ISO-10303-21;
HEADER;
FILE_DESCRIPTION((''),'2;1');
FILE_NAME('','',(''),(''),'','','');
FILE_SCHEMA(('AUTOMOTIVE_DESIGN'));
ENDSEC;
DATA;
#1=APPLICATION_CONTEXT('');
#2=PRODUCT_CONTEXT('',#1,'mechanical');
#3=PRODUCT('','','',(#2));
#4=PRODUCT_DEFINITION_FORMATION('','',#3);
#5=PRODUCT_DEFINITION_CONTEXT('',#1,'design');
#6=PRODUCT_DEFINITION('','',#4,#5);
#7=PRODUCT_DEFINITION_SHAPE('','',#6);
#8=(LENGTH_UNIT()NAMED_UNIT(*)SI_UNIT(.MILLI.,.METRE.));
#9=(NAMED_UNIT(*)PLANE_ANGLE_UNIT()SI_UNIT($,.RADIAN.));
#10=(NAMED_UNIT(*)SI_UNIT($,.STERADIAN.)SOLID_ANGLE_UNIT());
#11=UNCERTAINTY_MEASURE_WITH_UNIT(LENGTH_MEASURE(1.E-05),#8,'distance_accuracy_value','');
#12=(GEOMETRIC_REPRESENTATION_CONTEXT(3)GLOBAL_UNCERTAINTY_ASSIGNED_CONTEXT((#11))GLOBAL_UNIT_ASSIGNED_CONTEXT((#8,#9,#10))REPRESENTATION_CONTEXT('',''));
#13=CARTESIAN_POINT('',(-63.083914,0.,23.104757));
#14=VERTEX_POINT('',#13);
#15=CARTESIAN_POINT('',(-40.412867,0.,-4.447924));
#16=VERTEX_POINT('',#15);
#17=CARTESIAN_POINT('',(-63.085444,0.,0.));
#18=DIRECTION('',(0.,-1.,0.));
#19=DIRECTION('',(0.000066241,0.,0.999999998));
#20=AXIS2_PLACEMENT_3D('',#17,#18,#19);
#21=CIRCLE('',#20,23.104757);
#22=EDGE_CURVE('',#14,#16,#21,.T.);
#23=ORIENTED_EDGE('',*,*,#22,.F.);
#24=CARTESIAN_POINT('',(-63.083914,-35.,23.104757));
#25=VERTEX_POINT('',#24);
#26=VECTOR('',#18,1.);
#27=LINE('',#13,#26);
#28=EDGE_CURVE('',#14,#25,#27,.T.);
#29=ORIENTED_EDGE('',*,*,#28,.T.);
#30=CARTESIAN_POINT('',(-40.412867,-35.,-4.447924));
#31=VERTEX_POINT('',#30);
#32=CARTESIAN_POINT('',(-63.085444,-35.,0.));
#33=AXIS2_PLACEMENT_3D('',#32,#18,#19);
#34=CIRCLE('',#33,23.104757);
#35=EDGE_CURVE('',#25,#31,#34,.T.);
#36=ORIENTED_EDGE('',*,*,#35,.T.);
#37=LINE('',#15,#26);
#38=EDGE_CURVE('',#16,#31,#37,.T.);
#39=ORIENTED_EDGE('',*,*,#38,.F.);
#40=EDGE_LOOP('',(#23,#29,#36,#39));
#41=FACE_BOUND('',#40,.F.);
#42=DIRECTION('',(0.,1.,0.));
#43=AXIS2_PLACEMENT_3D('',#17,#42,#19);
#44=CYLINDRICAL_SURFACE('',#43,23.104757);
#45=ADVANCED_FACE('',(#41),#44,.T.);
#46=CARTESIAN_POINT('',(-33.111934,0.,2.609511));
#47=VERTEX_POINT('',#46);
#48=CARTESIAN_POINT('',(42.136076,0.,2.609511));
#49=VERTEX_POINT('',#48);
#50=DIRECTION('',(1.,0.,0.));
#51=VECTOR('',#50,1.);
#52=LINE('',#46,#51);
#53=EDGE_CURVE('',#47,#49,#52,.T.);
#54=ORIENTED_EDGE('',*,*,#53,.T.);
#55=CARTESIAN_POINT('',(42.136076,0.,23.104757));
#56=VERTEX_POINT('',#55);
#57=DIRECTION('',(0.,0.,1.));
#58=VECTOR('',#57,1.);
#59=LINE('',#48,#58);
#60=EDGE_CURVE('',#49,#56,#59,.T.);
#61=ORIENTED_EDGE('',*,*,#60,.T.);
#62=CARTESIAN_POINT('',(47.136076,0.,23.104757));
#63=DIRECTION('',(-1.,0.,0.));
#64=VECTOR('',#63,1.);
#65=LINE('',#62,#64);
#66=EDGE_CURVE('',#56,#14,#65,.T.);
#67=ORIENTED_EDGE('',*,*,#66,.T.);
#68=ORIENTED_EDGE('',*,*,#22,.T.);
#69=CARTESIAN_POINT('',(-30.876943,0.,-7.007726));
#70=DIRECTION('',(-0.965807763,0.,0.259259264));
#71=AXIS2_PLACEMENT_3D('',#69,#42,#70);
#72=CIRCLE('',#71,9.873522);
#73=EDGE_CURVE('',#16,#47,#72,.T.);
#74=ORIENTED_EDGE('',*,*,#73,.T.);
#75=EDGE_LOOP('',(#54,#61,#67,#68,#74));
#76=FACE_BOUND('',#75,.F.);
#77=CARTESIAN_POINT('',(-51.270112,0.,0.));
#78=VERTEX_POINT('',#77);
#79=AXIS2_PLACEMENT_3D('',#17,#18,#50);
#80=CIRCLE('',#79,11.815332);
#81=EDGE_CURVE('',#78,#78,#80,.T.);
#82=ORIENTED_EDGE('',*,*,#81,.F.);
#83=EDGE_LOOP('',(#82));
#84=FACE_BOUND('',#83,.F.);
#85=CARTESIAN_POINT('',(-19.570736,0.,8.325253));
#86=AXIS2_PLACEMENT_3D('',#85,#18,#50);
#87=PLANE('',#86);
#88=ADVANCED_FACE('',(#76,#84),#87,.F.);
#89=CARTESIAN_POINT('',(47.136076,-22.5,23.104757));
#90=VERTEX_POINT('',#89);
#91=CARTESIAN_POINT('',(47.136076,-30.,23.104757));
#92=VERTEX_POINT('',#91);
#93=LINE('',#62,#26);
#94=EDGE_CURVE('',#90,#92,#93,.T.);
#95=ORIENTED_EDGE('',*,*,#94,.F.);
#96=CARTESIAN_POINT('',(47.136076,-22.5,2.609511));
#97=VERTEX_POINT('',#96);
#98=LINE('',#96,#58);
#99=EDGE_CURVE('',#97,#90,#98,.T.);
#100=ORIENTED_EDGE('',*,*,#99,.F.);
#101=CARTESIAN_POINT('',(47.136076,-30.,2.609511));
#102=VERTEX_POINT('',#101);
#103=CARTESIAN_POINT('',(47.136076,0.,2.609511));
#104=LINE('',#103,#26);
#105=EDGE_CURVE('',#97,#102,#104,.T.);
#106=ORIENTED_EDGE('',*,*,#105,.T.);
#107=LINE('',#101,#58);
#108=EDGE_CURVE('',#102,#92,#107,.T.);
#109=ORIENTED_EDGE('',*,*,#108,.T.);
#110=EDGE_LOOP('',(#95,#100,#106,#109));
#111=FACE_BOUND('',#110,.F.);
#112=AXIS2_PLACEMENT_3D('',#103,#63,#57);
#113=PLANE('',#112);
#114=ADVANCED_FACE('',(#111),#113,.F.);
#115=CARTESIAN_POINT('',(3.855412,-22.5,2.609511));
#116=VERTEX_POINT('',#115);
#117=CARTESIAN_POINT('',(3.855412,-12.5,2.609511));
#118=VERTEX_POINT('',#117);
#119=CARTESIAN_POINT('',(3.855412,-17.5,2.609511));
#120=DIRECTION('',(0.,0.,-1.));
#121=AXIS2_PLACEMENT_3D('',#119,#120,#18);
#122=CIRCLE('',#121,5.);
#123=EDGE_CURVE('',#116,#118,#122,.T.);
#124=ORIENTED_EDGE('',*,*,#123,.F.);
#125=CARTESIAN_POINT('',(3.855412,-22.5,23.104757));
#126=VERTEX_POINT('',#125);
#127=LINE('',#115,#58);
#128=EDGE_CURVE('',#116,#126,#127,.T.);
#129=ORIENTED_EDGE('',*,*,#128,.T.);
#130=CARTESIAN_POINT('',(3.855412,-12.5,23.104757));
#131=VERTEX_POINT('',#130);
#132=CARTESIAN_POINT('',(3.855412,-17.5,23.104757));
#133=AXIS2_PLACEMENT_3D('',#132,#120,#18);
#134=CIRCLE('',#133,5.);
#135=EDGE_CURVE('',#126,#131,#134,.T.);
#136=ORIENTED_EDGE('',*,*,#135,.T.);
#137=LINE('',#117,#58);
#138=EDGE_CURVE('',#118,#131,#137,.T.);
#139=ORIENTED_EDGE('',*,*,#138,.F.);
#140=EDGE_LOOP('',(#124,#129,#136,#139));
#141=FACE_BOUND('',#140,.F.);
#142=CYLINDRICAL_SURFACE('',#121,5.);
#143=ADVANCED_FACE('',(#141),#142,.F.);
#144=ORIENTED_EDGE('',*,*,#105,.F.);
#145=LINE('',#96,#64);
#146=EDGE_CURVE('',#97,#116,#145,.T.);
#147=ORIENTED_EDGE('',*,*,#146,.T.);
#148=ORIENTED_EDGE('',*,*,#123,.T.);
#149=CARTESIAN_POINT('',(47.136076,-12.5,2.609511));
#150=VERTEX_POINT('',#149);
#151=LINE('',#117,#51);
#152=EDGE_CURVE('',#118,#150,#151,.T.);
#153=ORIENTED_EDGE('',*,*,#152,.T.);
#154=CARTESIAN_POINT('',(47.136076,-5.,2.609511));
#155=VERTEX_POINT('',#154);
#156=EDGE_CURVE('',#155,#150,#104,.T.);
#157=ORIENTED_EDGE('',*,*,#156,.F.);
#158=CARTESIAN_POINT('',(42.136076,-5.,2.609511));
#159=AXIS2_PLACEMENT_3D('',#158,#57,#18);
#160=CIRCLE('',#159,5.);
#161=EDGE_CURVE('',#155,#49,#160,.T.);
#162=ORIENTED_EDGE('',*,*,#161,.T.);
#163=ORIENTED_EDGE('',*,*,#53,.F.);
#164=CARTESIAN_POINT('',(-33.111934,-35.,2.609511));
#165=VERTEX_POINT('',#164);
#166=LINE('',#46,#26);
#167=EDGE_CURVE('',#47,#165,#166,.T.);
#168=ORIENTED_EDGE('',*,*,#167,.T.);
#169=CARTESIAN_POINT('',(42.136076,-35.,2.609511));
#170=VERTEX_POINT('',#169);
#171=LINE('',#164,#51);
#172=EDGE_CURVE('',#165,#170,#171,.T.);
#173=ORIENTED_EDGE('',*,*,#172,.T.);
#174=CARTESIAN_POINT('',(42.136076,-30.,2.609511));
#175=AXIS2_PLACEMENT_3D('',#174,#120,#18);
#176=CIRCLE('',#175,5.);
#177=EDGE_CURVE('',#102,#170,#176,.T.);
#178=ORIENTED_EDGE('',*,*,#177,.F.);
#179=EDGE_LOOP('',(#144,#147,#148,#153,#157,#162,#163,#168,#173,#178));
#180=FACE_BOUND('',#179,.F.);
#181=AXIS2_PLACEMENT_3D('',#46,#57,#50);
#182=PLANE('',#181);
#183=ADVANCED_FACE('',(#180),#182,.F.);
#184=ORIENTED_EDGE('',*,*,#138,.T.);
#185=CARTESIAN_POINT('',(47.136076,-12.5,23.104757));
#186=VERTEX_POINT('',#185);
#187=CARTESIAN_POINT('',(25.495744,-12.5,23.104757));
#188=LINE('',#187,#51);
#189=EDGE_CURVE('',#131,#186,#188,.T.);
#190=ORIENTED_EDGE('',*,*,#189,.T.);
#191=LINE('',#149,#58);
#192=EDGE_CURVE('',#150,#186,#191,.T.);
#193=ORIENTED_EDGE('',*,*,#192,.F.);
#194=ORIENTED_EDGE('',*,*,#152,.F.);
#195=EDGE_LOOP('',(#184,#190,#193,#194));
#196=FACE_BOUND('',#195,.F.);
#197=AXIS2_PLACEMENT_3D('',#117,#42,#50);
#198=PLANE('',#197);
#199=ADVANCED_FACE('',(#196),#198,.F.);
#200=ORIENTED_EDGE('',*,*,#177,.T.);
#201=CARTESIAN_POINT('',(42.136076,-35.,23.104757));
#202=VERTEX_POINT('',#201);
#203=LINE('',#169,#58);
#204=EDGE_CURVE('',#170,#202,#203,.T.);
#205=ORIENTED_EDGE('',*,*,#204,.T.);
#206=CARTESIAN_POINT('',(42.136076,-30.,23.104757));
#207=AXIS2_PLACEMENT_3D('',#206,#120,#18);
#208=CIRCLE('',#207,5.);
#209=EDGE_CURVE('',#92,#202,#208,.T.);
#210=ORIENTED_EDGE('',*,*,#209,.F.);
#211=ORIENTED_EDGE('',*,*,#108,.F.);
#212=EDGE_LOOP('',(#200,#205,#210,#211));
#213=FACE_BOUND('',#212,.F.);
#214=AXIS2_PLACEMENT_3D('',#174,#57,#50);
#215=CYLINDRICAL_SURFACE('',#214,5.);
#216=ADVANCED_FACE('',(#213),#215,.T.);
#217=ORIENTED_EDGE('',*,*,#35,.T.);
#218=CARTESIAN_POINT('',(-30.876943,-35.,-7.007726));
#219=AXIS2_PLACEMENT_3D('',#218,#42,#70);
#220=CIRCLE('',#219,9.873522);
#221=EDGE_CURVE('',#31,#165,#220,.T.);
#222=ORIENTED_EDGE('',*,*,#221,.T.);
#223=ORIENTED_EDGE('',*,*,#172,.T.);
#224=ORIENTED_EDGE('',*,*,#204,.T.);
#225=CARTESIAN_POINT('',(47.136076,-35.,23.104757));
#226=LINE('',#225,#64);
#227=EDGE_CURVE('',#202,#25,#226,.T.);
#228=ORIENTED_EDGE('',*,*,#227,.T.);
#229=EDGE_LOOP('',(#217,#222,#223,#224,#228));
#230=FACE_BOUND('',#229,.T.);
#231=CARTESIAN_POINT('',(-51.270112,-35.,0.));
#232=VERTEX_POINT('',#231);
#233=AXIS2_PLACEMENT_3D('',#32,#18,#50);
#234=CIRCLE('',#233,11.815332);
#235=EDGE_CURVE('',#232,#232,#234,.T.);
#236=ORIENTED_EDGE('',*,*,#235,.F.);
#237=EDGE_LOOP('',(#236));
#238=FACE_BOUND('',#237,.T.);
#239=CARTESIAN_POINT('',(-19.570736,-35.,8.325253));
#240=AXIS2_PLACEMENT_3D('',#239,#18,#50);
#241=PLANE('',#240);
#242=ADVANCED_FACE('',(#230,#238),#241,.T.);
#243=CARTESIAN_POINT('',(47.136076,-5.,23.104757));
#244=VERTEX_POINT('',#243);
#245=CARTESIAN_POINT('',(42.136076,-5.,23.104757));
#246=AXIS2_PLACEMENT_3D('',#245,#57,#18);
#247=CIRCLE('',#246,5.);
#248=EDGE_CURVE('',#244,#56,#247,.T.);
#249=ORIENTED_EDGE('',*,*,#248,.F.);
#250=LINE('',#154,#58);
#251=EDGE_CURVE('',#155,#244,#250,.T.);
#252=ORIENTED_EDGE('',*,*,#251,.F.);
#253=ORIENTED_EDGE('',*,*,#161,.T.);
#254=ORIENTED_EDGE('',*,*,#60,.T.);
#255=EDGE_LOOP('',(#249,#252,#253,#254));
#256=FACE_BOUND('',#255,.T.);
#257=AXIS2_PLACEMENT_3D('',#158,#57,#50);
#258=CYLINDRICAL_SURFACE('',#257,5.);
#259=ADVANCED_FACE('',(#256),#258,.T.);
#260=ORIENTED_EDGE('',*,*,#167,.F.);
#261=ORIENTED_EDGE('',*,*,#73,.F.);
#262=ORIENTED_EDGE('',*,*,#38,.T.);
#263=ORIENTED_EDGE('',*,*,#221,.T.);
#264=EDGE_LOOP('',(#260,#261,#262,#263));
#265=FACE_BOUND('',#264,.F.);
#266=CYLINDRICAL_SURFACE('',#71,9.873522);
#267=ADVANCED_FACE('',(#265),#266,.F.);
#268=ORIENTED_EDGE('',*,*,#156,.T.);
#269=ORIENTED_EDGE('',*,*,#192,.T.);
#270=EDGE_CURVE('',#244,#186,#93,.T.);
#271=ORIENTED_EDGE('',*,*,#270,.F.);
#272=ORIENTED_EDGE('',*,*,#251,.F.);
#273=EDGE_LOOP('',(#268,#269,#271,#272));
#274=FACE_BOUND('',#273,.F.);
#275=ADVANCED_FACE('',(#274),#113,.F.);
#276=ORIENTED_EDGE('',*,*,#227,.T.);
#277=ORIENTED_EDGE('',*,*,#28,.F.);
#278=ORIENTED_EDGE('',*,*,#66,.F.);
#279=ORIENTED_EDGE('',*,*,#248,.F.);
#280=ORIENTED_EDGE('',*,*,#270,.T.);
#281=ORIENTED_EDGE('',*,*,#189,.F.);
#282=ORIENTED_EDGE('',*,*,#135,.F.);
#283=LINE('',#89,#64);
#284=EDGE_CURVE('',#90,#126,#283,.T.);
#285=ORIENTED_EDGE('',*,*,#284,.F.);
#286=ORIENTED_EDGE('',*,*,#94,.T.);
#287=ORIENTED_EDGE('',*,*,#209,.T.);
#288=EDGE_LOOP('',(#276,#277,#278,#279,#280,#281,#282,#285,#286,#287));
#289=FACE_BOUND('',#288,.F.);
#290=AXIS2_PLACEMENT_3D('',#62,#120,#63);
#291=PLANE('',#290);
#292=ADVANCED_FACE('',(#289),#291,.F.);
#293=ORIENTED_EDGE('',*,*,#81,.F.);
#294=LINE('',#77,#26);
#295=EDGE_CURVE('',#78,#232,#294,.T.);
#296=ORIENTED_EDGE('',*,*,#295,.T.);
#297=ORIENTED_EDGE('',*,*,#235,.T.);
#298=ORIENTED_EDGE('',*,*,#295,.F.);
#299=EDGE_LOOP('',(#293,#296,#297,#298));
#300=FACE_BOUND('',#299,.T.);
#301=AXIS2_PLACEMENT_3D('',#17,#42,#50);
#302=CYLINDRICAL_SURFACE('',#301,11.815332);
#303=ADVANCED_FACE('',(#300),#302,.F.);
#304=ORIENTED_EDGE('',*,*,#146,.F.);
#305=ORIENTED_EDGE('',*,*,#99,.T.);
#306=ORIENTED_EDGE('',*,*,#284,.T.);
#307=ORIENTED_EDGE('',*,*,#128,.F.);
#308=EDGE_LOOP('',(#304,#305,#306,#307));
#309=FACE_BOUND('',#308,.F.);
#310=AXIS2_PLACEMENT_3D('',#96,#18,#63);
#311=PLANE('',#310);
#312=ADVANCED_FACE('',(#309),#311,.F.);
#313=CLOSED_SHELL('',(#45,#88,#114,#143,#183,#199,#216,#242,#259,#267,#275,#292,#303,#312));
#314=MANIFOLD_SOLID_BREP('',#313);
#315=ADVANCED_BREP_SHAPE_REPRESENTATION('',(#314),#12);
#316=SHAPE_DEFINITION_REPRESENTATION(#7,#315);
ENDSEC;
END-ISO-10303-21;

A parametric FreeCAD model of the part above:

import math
import FreeCAD as App
import Part
import Sketcher

V = App.Vector
Q = App.Units.Quantity


def edges_at(feature, points):
    """Names of the edges that pass closest to the given points."""
    edges = feature.Shape.Edges
    near = lambda p: min(range(len(edges)), key=lambda i: edges[i].distToShape(Part.Vertex(*p))[0])
    return sorted({f"Edge{near(p) + 1}" for p in points})

doc = App.newDocument("Part")
body = doc.addObject("PartDesign::Body", "Body")

# Sketch on XZ plane
sketch1 = body.newObject("Sketcher::SketchObject", "Sketch")
sketch1.AttachmentSupport = (doc.getObject("XZ_Plane"), [""])
sketch1.MapMode = "FlatFace"
sketch1.addGeometry(Part.LineSegment(V(47.136076, 23.104757, 0), V(-63.083914, 23.104757, 0)), False)
sketch1.addGeometry(Part.ArcOfCircle(Part.Circle(V(-63.085444, 0, 0), V(0, 0, 1), 23.104757), math.radians(89.996205), math.radians(348.90063)), False)
sketch1.addGeometry(Part.ArcOfCircle(Part.Circle(V(-30.876943, -7.007726, 0), V(0, 0, 1), 9.873522), math.radians(103.082986), math.radians(164.973886)), False)
sketch1.addGeometry(Part.LineSegment(V(-33.111934, 2.609511, 0), V(47.136076, 2.609511, 0)), False)
sketch1.addGeometry(Part.LineSegment(V(47.136076, 2.609511, 0), V(47.136076, 23.104757, 0)), False)
sketch1.addGeometry(Part.Circle(V(-63.085444, 0, 0), V(0, 0, 1), 11.815332), False)
sketch1.addConstraint(Sketcher.Constraint("Coincident", 0, 2, 1, 1))
sketch1.addConstraint(Sketcher.Constraint("Coincident", 1, 2, 2, 2))
sketch1.addConstraint(Sketcher.Constraint("Coincident", 2, 1, 3, 1))
sketch1.addConstraint(Sketcher.Constraint("Coincident", 3, 2, 4, 1))
sketch1.addConstraint(Sketcher.Constraint("Coincident", 4, 2, 0, 1))
sketch1.addConstraint(Sketcher.Constraint("Horizontal", 0))
sketch1.addConstraint(Sketcher.Constraint("Horizontal", 3))
sketch1.addConstraint(Sketcher.Constraint("Vertical", 4))
sketch1.addConstraint(Sketcher.Constraint("Coincident", 5, 3, 1, 3))
sketch1.addConstraint(Sketcher.Constraint("PointOnObject", 1, 3, -1))
sketch1.addConstraint(Sketcher.Constraint("Radius", 2, Q("9.873522 mm")))
sketch1.addConstraint(Sketcher.Constraint("Diameter", 5, Q("23.630664 mm")))
sketch1.addConstraint(Sketcher.Constraint("Radius", 1, Q("23.104757 mm")))
sketch1.addConstraint(Sketcher.Constraint("DistanceX", 0, 2, 0, 1, Q("110.21999 mm")))
sketch1.addConstraint(Sketcher.Constraint("DistanceX", 3, 1, 3, 2, Q("80.24801 mm")))
sketch1.addConstraint(Sketcher.Constraint("DistanceX", 1, 3, 2, 3, Q("32.208501 mm")))
sketch1.addConstraint(Sketcher.Constraint("DistanceY", 2, 3, 1, 2, Q("2.559802 mm")))
sketch1.addConstraint(Sketcher.Constraint("DistanceY", 4, 1, 4, 2, Q("20.495246 mm")))
sketch1.addConstraint(Sketcher.Constraint("DistanceX", 1, 3, -1, 1, Q("63.085444 mm")))
pad1 = body.newObject("PartDesign::Pad", "Pad")
pad1.Profile = sketch1
pad1.Length = 35
doc.recompute()

fillet = body.newObject("PartDesign::Fillet", "Fillet")
fillet.Base = (pad1, edges_at(pad1, [(47.136, -35, 12.857), (47.136, 0, 12.857)]))
fillet.Radius = 5

# Sketch on XY plane
sketch2 = body.newObject("Sketcher::SketchObject", "Sketch001")
sketch2.AttachmentSupport = (doc.getObject("XY_Plane"), [""])
sketch2.MapMode = "FlatFace"
sketch2.AttachmentOffset = App.Placement(V(0, 0, 2.609511), App.Rotation())
sketch2.addGeometry(Part.LineSegment(V(47.136076, -12.5, 0), V(47.136076, -22.5, 0)), False)
sketch2.addGeometry(Part.LineSegment(V(47.136076, -22.5, 0), V(3.855412, -22.5, 0)), False)
sketch2.addGeometry(Part.ArcOfCircle(Part.Circle(V(3.855412, -17.5, 0), V(0, 0, 1), 5), math.radians(90), math.radians(270)), False)
sketch2.addGeometry(Part.LineSegment(V(3.855412, -12.5, 0), V(47.136076, -12.5, 0)), False)
sketch2.addConstraint(Sketcher.Constraint("Coincident", 0, 2, 1, 1))
sketch2.addConstraint(Sketcher.Constraint("Tangent", 1, 2, 2, 2))
sketch2.addConstraint(Sketcher.Constraint("Tangent", 2, 1, 3, 1))
sketch2.addConstraint(Sketcher.Constraint("Coincident", 3, 2, 0, 1))
sketch2.addConstraint(Sketcher.Constraint("Vertical", 0))
sketch2.addConstraint(Sketcher.Constraint("Horizontal", 1))
sketch2.addConstraint(Sketcher.Constraint("Horizontal", 3))
sketch2.addConstraint(Sketcher.Constraint("Radius", 2, Q("5 mm")))
sketch2.addConstraint(Sketcher.Constraint("DistanceY", 2, 3, -1, 1, Q("17.5 mm")))
sketch2.addConstraint(Sketcher.Constraint("DistanceX", 1, 2, 1, 1, Q("43.280664 mm")))
sketch2.addConstraint(Sketcher.Constraint("DistanceX", -1, 1, 2, 3, Q("3.855412 mm")))
pocket1 = body.newObject("PartDesign::Pocket", "Pocket")
pocket1.Profile = sketch2
pocket1.Length = 40
pocket1.Reversed = True

doc.recompute()
